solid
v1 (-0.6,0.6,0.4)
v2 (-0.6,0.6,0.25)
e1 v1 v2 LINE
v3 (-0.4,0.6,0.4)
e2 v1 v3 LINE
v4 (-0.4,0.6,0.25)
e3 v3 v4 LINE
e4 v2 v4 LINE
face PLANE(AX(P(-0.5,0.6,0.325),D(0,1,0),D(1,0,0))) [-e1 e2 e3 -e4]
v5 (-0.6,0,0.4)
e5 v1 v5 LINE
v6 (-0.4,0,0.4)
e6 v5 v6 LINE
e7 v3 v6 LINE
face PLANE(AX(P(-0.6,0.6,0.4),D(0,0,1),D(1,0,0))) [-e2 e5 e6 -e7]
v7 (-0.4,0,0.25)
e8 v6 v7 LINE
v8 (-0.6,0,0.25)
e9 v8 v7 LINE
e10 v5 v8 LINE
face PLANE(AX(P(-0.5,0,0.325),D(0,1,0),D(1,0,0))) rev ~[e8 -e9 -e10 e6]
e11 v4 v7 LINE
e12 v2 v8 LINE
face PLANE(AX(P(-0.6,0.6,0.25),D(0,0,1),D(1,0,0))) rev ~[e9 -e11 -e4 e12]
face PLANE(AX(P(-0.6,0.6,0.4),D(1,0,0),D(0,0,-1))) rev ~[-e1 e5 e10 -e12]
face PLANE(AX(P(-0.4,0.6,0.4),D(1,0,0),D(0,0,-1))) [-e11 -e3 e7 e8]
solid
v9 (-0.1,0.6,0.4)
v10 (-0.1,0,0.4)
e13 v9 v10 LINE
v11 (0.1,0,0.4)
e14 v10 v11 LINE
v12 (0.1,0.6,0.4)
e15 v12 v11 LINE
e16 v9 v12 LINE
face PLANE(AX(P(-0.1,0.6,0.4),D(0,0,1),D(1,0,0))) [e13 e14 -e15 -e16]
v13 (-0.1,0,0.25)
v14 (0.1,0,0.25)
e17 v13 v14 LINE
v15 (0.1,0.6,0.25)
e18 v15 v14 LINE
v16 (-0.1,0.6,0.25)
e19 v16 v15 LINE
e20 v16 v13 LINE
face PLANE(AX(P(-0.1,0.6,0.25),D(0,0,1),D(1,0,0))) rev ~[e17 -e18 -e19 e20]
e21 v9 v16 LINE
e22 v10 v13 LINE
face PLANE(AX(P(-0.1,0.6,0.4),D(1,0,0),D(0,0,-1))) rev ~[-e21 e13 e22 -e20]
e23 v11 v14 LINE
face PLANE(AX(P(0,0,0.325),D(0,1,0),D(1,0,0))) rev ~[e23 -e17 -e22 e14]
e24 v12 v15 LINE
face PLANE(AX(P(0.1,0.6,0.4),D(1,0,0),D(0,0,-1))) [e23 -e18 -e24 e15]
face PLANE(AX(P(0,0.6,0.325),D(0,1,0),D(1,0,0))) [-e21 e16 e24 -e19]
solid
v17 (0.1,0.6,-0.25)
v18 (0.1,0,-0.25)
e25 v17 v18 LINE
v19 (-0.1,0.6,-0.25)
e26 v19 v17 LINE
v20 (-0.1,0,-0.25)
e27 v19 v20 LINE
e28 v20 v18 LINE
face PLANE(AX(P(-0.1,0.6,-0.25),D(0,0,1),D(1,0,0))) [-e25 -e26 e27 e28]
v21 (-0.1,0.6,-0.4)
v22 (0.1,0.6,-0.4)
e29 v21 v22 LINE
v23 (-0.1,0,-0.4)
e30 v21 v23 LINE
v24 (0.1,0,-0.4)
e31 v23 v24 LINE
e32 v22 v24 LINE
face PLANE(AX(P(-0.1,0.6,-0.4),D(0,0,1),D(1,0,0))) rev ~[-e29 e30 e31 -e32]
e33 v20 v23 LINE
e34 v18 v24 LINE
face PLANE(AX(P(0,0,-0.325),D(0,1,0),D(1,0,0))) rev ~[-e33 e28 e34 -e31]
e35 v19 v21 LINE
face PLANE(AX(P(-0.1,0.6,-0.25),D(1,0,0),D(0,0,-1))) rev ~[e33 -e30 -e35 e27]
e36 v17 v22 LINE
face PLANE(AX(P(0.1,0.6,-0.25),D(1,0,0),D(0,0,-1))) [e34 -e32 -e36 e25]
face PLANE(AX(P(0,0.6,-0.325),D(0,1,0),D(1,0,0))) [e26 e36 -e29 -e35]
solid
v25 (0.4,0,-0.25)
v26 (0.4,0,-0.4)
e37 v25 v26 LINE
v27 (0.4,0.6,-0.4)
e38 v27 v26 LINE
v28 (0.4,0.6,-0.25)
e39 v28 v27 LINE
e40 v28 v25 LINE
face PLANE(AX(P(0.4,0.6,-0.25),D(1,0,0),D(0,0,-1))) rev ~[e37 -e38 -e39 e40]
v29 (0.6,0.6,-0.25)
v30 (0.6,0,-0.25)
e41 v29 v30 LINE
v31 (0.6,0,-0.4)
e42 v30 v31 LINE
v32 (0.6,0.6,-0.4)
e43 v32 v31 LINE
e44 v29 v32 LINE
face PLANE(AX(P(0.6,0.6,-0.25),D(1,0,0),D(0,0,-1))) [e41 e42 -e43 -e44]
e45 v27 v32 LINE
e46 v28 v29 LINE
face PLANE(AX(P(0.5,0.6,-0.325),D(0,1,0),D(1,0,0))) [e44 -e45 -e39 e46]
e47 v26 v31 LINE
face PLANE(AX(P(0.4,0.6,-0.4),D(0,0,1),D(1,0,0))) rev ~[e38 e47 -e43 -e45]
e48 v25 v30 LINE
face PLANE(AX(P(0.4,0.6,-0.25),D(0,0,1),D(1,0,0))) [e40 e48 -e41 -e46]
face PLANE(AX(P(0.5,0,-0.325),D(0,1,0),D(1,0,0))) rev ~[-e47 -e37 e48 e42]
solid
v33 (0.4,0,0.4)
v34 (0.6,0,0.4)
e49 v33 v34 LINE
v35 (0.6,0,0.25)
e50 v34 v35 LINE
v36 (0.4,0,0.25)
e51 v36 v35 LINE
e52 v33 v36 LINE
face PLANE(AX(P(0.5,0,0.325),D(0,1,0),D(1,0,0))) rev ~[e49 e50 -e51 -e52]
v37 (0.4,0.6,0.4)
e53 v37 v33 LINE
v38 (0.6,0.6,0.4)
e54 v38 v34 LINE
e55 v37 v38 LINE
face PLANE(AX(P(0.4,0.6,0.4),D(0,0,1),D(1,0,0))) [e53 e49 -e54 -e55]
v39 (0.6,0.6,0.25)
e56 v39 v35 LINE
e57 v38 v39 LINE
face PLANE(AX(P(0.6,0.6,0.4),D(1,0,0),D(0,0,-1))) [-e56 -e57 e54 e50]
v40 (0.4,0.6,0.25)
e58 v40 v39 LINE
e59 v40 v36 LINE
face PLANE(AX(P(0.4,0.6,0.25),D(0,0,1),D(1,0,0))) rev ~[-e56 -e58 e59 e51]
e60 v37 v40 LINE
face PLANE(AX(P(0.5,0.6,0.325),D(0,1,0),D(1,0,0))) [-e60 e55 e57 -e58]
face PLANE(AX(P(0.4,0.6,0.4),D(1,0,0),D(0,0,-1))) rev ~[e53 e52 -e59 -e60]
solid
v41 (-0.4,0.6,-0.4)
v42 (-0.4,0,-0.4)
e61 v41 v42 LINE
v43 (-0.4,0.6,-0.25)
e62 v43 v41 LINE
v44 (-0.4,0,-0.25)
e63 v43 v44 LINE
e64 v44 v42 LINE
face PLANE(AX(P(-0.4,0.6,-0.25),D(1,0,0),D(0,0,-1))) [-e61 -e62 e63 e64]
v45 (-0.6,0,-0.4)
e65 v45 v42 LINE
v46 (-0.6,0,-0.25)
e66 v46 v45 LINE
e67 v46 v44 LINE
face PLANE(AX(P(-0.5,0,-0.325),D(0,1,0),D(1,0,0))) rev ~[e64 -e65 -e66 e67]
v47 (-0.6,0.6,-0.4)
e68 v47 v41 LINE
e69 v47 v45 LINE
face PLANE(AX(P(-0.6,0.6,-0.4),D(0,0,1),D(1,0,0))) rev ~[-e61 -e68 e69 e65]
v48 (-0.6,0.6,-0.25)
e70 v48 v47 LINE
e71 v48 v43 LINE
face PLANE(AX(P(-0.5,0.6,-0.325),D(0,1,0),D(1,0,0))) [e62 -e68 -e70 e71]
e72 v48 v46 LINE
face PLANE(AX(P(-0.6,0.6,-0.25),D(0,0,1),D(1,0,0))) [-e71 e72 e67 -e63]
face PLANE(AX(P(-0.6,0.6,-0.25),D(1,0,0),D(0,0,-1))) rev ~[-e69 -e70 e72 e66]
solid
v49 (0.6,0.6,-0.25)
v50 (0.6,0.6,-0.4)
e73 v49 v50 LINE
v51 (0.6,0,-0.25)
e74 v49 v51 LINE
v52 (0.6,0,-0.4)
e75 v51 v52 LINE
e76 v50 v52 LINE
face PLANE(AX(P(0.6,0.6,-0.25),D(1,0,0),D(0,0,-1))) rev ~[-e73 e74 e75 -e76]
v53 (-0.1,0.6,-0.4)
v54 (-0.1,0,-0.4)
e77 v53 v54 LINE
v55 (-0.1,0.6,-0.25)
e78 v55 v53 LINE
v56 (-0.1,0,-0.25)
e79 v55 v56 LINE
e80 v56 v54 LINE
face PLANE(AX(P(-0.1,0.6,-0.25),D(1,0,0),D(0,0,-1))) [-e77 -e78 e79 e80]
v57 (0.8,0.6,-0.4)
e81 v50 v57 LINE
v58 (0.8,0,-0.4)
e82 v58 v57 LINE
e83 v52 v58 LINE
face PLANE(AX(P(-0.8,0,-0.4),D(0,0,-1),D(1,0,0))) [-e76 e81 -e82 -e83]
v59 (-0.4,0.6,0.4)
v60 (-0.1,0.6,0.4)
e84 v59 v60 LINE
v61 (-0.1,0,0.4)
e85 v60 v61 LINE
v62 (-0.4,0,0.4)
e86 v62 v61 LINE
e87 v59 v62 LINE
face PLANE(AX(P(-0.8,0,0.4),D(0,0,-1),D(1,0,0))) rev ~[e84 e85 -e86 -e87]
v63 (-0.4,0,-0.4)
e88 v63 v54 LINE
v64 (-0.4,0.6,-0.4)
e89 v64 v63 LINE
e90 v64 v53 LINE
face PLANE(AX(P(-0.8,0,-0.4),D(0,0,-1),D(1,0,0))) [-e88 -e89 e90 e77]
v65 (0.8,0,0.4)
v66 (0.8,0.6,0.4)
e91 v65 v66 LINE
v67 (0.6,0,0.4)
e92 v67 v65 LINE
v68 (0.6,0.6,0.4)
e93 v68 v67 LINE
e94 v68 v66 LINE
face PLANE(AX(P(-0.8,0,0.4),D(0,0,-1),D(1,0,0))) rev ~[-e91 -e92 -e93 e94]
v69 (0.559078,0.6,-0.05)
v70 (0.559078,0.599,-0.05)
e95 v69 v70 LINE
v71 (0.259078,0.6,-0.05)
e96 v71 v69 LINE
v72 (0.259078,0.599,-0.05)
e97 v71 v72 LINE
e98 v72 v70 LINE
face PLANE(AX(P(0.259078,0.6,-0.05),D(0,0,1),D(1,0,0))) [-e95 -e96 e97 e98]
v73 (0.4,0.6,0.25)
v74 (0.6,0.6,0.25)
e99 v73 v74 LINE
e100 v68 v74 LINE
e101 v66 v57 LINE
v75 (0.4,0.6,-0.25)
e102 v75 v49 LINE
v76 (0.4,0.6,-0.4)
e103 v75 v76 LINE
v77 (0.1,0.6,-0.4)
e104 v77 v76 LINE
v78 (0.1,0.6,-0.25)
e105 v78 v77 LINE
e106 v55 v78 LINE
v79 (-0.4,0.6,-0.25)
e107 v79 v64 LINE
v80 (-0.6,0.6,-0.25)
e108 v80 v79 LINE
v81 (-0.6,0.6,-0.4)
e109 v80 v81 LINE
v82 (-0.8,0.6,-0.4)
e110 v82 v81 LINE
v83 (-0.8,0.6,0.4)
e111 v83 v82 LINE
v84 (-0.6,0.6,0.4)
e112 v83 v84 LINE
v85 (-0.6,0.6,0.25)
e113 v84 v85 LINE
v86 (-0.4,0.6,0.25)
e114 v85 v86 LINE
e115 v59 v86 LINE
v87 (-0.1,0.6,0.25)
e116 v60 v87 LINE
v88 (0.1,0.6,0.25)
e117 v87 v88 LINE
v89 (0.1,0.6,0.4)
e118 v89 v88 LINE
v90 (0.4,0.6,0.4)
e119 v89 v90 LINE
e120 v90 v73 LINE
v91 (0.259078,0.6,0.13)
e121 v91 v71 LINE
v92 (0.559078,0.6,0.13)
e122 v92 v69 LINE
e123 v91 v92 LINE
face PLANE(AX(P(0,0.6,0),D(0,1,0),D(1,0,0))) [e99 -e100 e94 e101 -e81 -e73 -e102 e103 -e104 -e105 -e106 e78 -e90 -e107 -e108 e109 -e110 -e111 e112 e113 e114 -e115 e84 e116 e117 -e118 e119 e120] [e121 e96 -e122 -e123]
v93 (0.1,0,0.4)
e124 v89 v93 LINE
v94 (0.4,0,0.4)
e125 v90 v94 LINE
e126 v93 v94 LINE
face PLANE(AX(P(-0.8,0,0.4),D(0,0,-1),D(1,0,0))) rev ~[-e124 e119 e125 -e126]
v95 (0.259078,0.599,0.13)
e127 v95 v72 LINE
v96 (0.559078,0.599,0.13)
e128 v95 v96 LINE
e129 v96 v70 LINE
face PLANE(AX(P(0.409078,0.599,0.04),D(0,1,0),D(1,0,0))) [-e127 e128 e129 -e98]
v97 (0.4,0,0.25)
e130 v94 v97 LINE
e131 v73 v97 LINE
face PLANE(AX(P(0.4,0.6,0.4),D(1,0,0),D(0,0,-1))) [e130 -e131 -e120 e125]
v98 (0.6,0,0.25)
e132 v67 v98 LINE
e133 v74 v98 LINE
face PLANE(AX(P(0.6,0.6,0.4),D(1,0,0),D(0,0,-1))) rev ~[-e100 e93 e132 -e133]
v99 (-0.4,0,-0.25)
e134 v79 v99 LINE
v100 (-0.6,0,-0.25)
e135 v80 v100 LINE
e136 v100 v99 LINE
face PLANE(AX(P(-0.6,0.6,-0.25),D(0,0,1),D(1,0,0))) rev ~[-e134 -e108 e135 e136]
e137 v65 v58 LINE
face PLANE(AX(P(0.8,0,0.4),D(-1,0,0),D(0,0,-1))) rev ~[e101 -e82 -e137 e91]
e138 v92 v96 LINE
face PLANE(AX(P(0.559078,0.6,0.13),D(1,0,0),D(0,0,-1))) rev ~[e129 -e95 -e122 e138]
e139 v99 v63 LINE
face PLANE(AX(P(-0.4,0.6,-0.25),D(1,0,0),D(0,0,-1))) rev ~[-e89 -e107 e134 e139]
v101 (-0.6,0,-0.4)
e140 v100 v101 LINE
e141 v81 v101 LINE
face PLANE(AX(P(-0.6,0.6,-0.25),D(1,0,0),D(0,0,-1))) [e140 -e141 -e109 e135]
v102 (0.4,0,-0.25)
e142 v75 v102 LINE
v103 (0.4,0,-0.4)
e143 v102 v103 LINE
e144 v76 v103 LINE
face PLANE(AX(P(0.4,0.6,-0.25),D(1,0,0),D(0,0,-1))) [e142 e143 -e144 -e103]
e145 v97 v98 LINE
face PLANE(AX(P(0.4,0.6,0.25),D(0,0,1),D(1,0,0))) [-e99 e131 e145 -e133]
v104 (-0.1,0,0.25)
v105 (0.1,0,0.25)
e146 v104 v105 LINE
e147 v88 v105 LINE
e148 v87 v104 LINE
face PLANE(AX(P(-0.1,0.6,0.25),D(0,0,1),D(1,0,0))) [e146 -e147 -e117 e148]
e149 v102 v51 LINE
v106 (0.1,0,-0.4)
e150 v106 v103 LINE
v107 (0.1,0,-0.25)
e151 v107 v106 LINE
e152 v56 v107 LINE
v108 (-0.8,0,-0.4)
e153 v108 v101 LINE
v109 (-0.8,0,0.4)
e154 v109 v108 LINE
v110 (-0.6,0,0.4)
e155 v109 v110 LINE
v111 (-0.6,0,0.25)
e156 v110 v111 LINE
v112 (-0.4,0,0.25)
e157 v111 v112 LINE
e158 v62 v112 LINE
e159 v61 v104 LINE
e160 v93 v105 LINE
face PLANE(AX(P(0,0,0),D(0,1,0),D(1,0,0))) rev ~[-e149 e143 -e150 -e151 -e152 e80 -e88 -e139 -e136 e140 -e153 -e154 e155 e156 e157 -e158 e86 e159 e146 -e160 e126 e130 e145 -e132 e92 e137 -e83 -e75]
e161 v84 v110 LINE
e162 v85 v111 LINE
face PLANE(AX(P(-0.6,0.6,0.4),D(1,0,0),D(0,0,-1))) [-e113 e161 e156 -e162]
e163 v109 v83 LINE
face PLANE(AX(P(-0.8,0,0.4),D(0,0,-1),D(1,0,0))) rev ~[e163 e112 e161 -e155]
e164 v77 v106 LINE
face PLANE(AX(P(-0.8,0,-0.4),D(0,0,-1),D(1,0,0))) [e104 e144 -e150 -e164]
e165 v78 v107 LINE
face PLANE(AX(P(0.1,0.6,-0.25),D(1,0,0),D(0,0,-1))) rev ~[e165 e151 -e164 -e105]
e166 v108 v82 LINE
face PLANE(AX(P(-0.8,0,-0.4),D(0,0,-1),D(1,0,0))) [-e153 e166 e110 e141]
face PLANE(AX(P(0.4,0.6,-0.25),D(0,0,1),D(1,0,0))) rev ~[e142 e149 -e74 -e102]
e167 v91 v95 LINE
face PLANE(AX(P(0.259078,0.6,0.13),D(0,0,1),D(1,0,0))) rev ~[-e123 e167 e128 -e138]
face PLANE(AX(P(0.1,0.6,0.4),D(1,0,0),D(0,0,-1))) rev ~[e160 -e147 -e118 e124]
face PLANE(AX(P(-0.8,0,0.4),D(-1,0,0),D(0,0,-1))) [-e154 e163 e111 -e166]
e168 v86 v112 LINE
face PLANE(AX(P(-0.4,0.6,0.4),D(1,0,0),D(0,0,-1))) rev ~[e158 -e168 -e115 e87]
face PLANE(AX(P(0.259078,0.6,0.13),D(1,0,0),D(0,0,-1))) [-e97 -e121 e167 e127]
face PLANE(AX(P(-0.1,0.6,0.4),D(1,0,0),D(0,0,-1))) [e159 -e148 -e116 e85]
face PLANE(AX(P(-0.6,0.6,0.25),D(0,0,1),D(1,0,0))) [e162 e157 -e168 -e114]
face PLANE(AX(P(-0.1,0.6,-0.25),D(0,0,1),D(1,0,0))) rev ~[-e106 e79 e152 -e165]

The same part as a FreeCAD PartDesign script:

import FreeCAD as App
import Part
import Sketcher

V = App.Vector
Q = App.Units.Quantity


def add_polygon(sketch, points):
    """Adds a closed chain of lines whose ends are joined by coincident constraints."""
    first, n = sketch.GeometryCount, len(points)
    for a, b in zip(points, points[1:] + points[:1]):
        sketch.addGeometry(Part.LineSegment(App.Vector(*a, 0), App.Vector(*b, 0)), False)
    for i in range(n):
        sketch.addConstraint(Sketcher.Constraint("Coincident", first + i, 2, first + (i + 1) % n, 1))

doc = App.newDocument("Part")
body = doc.addObject("PartDesign::Body", "Body")

# Sketch on XZ plane
sketch1 = doc.addObject("Sketcher::SketchObject", "Sketch")
body.addObject(sketch1)
sketch1.AttachmentSupport = (doc.XZ_Plane, [""])
sketch1.MapMode = "FlatFace"
add_polygon(sketch1, [(-0.8, -0.4), (-0.8, 0.4), (0.8, 0.4), (0.8, -0.4)])  # lines 0-3
sketch1.addConstraint([
    Sketcher.Constraint("Vertical", 0),
    Sketcher.Constraint("Horizontal", 1),
    Sketcher.Constraint("Vertical", 2),
    Sketcher.Constraint("Horizontal", 3),
    Sketcher.Constraint("Symmetric", 0, 2, 2, 2, -1, 1),
    Sketcher.Constraint("DistanceX", 1, 1, 1, 2, Q("1.6 mm")),
    Sketcher.Constraint("DistanceY", 0, 1, 0, 2, Q("0.8 mm")),
])
pad1 = doc.addObject("PartDesign::Pad", "Pad")
body.addObject(pad1)
pad1.Profile = sketch1
pad1.Length = 0.6
pad1.Reversed = True

# Sketch on XZ plane
sketch2 = doc.addObject("Sketcher::SketchObject", "Sketch001")
body.addObject(sketch2)
sketch2.AttachmentSupport = (doc.XZ_Plane, [""])
sketch2.MapMode = "FlatFace"
sketch2.AttachmentOffset = App.Placement(V(0, 0, -0.6), App.Rotation())
add_polygon(sketch2, [(0.4, 0.25), (0.4, 0.4), (0.6, 0.4), (0.6, 0.25)])  # lines 0-3
add_polygon(sketch2, [(-0.1, 0.25), (-0.1, 0.4), (0.1, 0.4), (0.1, 0.25)])  # lines 4-7
add_polygon(sketch2, [(-0.6, 0.25), (-0.6, 0.4), (-0.4, 0.4), (-0.4, 0.25)])  # lines 8-11
add_polygon(sketch2, [(-0.1, -0.4), (-0.1, -0.25), (0.1, -0.25), (0.1, -0.4)])  # lines 12-15
add_polygon(sketch2, [(0.4, -0.4), (0.4, -0.25), (0.6, -0.25), (0.6, -0.4)])  # lines 16-19
add_polygon(sketch2, [(-0.6, -0.4), (-0.6, -0.25), (-0.4, -0.25), (-0.4, -0.4)])  # lines 20-23
sketch2.addConstraint([
    Sketcher.Constraint("Vertical", 0),
    Sketcher.Constraint("Horizontal", 1),
    Sketcher.Constraint("Vertical", 2),
    Sketcher.Constraint("Horizontal", 3),
    Sketcher.Constraint("Vertical", 4),
    Sketcher.Constraint("Horizontal", 5),
    Sketcher.Constraint("Vertical", 6),
    Sketcher.Constraint("Horizontal", 7),
    Sketcher.Constraint("Vertical", 8),
    Sketcher.Constraint("Horizontal", 9),
    Sketcher.Constraint("Vertical", 10),
    Sketcher.Constraint("Horizontal", 11),
    Sketcher.Constraint("Vertical", 12),
    Sketcher.Constraint("Horizontal", 13),
    Sketcher.Constraint("Vertical", 14),
    Sketcher.Constraint("Horizontal", 15),
    Sketcher.Constraint("Vertical", 16),
    Sketcher.Constraint("Horizontal", 17),
    Sketcher.Constraint("Vertical", 18),
    Sketcher.Constraint("Horizontal", 19),
    Sketcher.Constraint("Vertical", 20),
    Sketcher.Constraint("Horizontal", 21),
    Sketcher.Constraint("Vertical", 22),
    Sketcher.Constraint("Horizontal", 23),
    Sketcher.Constraint("Symmetric", 6, 2, 12, 2, -1, 1),
    Sketcher.Constraint("Symmetric", 4, 2, 14, 2, -1, 1),
    Sketcher.Constraint("Symmetric", 10, 2, 16, 2, -1, 1),
    Sketcher.Constraint("Symmetric", 8, 2, 18, 2, -1, 1),
    Sketcher.Constraint("Symmetric", 2, 2, 20, 2, -1, 1),
    Sketcher.Constraint("Symmetric", 0, 2, 22, 2, -1, 1),
    Sketcher.Constraint("Symmetric", 1, 2, 8, 2, -2),
    Sketcher.Constraint("Symmetric", 3, 2, 10, 2, -2),
    Sketcher.Constraint("Horizontal", 1, 2, 4, 2),
    Sketcher.Constraint("Horizontal", 3, 2, 6, 2),
    Sketcher.Constraint("Vertical", 7, 2, 12, 2),
    Sketcher.Constraint("Equal", 3, 5),
    Sketcher.Constraint("DistanceX", 1, 1, 1, 2, Q("0.2 mm")),
    Sketcher.Constraint("DistanceX", 8, 2, 0, 2, Q("1 mm")),
    Sketcher.Constraint("DistanceY", 0, 1, 0, 2, Q("0.15 mm")),
    Sketcher.Constraint("DistanceY", -1, 1, 0, 2, Q("0.4 mm")),
])
pocket1 = doc.addObject("PartDesign::Pocket", "Pocket")
body.addObject(pocket1)
pocket1.Profile = sketch2
pocket1.Length = 1
pocket1.Reversed = True

# Sketch on XZ plane
sketch3 = doc.addObject("Sketcher::SketchObject", "Sketch002")
body.addObject(sketch3)
sketch3.AttachmentSupport = (doc.XZ_Plane, [""])
sketch3.MapMode = "FlatFace"
sketch3.AttachmentOffset = App.Placement(V(0, 0, -0.6), App.Rotation())
add_polygon(sketch3, [(0.259078, -0.05), (0.259078, 0.13), (0.559078, 0.13), (0.559078, -0.05)])  # lines 0-3
sketch3.addConstraint([
    Sketcher.Constraint("Vertical", 0),
    Sketcher.Constraint("Horizontal", 1),
    Sketcher.Constraint("Vertical", 2),
    Sketcher.Constraint("Horizontal", 3),
    Sketcher.Constraint("DistanceX", 1, 1, 1, 2, Q("0.3 mm")),
    Sketcher.Constraint("DistanceY", 0, 1, 0, 2, Q("0.18 mm")),
    Sketcher.Constraint("DistanceY", -1, 1, 0, 2, Q("0.13 mm")),
    Sketcher.Constraint("DistanceX", -1, 1, 0, 2, Q("0.259078 mm")),
])
pocket2 = doc.addObject("PartDesign::Pocket", "Pocket001")
body.addObject(pocket2)
pocket2.Profile = sketch3
pocket2.Length = 0.001
pocket2.Reversed = True
body2 = doc.addObject("PartDesign::Body", "Body001")

# Sketch on XZ plane
sketch4 = doc.addObject("Sketcher::SketchObject", "Sketch003")
body2.addObject(sketch4)
sketch4.AttachmentSupport = (doc.getObject("XZ_Plane001"), [""])
sketch4.MapMode = "FlatFace"
sketch4.AttachmentOffset = App.Placement(V(0, 0, -0.6), App.Rotation())
add_polygon(sketch4, [(-0.6, -0.4), (-0.6, -0.25), (-0.4, -0.25), (-0.4, -0.4)])  # lines 0-3
sketch4.addConstraint([
    Sketcher.Constraint("Vertical", 0),
    Sketcher.Constraint("Horizontal", 1),
    Sketcher.Constraint("Vertical", 2),
    Sketcher.Constraint("Horizontal", 3),
    Sketcher.Constraint("DistanceX", 1, 1, 1, 2, Q("0.2 mm")),
    Sketcher.Constraint("DistanceY", 0, 1, 0, 2, Q("0.15 mm")),
    Sketcher.Constraint("DistanceX", 0, 2, -1, 1, Q("0.6 mm")),
    Sketcher.Constraint("DistanceY", 2, 2, -1, 1, Q("0.4 mm")),
])
pad2 = doc.addObject("PartDesign::Pad", "Pad001")
body2.addObject(pad2)
pad2.Profile = sketch4
pad2.Length = 0.6
body3 = doc.addObject("PartDesign::Body", "Body002")

# Sketch on XZ plane
sketch5 = doc.addObject("Sketcher::SketchObject", "Sketch004")
body3.addObject(sketch5)
sketch5.AttachmentSupport = (doc.getObject("XZ_Plane002"), [""])
sketch5.MapMode = "FlatFace"
sketch5.AttachmentOffset = App.Placement(V(0, 0, -0.6), App.Rotation())
add_polygon(sketch5, [(0.4, 0.25), (0.4, 0.4), (0.6, 0.4), (0.6, 0.25)])  # lines 0-3
sketch5.addConstraint([
    Sketcher.Constraint("Vertical", 0),
    Sketcher.Constraint("Horizontal", 1),
    Sketcher.Constraint("Vertical", 2),
    Sketcher.Constraint("Horizontal", 3),
    Sketcher.Constraint("DistanceX", 1, 1, 1, 2, Q("0.2 mm")),
    Sketcher.Constraint("DistanceY", 0, 1, 0, 2, Q("0.15 mm")),
    Sketcher.Constraint("DistanceX", -1, 1, 0, 2, Q("0.4 mm")),
    Sketcher.Constraint("DistanceY", -1, 1, 0, 2, Q("0.4 mm")),
])
pad3 = doc.addObject("PartDesign::Pad", "Pad002")
body3.addObject(pad3)
pad3.Profile = sketch5
pad3.Length = 0.6
body4 = doc.addObject("PartDesign::Body", "Body003")

# Sketch on XZ plane
sketch6 = doc.addObject("Sketcher::SketchObject", "Sketch005")
body4.addObject(sketch6)
sketch6.AttachmentSupport = (doc.getObject("XZ_Plane003"), [""])
sketch6.MapMode = "FlatFace"
sketch6.AttachmentOffset = App.Placement(V(0, 0, -0.6), App.Rotation())
add_polygon(sketch6, [(-0.6, 0.25), (-0.6, 0.4), (-0.4, 0.4), (-0.4, 0.25)])  # lines 0-3
sketch6.addConstraint([
    Sketcher.Constraint("Vertical", 0),
    Sketcher.Constraint("Horizontal", 1),
    Sketcher.Constraint("Vertical", 2),
    Sketcher.Constraint("Horizontal", 3),
    Sketcher.Constraint("DistanceX", 1, 1, 1, 2, Q("0.2 mm")),
    Sketcher.Constraint("DistanceY", 0, 1, 0, 2, Q("0.15 mm")),
    Sketcher.Constraint("DistanceX", 0, 2, -1, 1, Q("0.6 mm")),
    Sketcher.Constraint("DistanceY", -1, 1, 0, 2, Q("0.4 mm")),
])
pad4 = doc.addObject("PartDesign::Pad", "Pad003")
body4.addObject(pad4)
pad4.Profile = sketch6
pad4.Length = 0.6
body5 = doc.addObject("PartDesign::Body", "Body004")

# Sketch on XZ plane
sketch7 = doc.addObject("Sketcher::SketchObject", "Sketch006")
body5.addObject(sketch7)
sketch7.AttachmentSupport = (doc.getObject("XZ_Plane004"), [""])
sketch7.MapMode = "FlatFace"
sketch7.AttachmentOffset = App.Placement(V(0, 0, -0.6), App.Rotation())
add_polygon(sketch7, [(-0.1, 0.25), (-0.1, 0.4), (0.1, 0.4), (0.1, 0.25)])  # lines 0-3
sketch7.addConstraint([
    Sketcher.Constraint("Vertical", 0),
    Sketcher.Constraint("Horizontal", 1),
    Sketcher.Constraint("Vertical", 2),
    Sketcher.Constraint("Horizontal", 3),
    Sketcher.Constraint("DistanceX", 1, 1, 1, 2, Q("0.2 mm")),
    Sketcher.Constraint("DistanceY", 0, 1, 0, 2, Q("0.15 mm")),
    Sketcher.Constraint("DistanceX", 0, 2, -1, 1, Q("0.1 mm")),
    Sketcher.Constraint("DistanceY", -1, 1, 0, 2, Q("0.4 mm")),
])
pad5 = doc.addObject("PartDesign::Pad", "Pad004")
body5.addObject(pad5)
pad5.Profile = sketch7
pad5.Length = 0.6
body6 = doc.addObject("PartDesign::Body", "Body005")

# Sketch on XZ plane
sketch8 = doc.addObject("Sketcher::SketchObject", "Sketch007")
body6.addObject(sketch8)
sketch8.AttachmentSupport = (doc.getObject("XZ_Plane005"), [""])
sketch8.MapMode = "FlatFace"
sketch8.AttachmentOffset = App.Placement(V(0, 0, -0.6), App.Rotation())
add_polygon(sketch8, [(0.4, -0.4), (0.4, -0.25), (0.6, -0.25), (0.6, -0.4)])  # lines 0-3
sketch8.addConstraint([
    Sketcher.Constraint("Vertical", 0),
    Sketcher.Constraint("Horizontal", 1),
    Sketcher.Constraint("Vertical", 2),
    Sketcher.Constraint("Horizontal", 3),
    Sketcher.Constraint("DistanceX", 1, 1, 1, 2, Q("0.2 mm")),
    Sketcher.Constraint("DistanceY", 0, 1, 0, 2, Q("0.15 mm")),
    Sketcher.Constraint("DistanceX", -1, 1, 0, 2, Q("0.4 mm")),
    Sketcher.Constraint("DistanceY", 2, 2, -1, 1, Q("0.4 mm")),
])
pad6 = doc.addObject("PartDesign::Pad", "Pad005")
body6.addObject(pad6)
pad6.Profile = sketch8
pad6.Length = 0.6
body7 = doc.addObject("PartDesign::Body", "Body006")

# Sketch on XZ plane
sketch9 = doc.addObject("Sketcher::SketchObject", "Sketch008")
body7.addObject(sketch9)
sketch9.AttachmentSupport = (doc.getObject("XZ_Plane006"), [""])
sketch9.MapMode = "FlatFace"
sketch9.AttachmentOffset = App.Placement(V(0, 0, -0.6), App.Rotation())
add_polygon(sketch9, [(-0.1, -0.4), (-0.1, -0.25), (0.1, -0.25), (0.1, -0.4)])  # lines 0-3
sketch9.addConstraint([
    Sketcher.Constraint("Vertical", 0),
    Sketcher.Constraint("Horizontal", 1),
    Sketcher.Constraint("Vertical", 2),
    Sketcher.Constraint("Horizontal", 3),
    Sketcher.Constraint("DistanceX", 1, 1, 1, 2, Q("0.2 mm")),
    Sketcher.Constraint("DistanceY", 0, 1, 0, 2, Q("0.15 mm")),
    Sketcher.Constraint("DistanceX", 0, 2, -1, 1, Q("0.1 mm")),
    Sketcher.Constraint("DistanceY", 2, 2, -1, 1, Q("0.4 mm")),
])
pad7 = doc.addObject("PartDesign::Pad", "Pad006")
body7.addObject(pad7)
pad7.Profile = sketch9
pad7.Length = 0.6

doc.recompute()
